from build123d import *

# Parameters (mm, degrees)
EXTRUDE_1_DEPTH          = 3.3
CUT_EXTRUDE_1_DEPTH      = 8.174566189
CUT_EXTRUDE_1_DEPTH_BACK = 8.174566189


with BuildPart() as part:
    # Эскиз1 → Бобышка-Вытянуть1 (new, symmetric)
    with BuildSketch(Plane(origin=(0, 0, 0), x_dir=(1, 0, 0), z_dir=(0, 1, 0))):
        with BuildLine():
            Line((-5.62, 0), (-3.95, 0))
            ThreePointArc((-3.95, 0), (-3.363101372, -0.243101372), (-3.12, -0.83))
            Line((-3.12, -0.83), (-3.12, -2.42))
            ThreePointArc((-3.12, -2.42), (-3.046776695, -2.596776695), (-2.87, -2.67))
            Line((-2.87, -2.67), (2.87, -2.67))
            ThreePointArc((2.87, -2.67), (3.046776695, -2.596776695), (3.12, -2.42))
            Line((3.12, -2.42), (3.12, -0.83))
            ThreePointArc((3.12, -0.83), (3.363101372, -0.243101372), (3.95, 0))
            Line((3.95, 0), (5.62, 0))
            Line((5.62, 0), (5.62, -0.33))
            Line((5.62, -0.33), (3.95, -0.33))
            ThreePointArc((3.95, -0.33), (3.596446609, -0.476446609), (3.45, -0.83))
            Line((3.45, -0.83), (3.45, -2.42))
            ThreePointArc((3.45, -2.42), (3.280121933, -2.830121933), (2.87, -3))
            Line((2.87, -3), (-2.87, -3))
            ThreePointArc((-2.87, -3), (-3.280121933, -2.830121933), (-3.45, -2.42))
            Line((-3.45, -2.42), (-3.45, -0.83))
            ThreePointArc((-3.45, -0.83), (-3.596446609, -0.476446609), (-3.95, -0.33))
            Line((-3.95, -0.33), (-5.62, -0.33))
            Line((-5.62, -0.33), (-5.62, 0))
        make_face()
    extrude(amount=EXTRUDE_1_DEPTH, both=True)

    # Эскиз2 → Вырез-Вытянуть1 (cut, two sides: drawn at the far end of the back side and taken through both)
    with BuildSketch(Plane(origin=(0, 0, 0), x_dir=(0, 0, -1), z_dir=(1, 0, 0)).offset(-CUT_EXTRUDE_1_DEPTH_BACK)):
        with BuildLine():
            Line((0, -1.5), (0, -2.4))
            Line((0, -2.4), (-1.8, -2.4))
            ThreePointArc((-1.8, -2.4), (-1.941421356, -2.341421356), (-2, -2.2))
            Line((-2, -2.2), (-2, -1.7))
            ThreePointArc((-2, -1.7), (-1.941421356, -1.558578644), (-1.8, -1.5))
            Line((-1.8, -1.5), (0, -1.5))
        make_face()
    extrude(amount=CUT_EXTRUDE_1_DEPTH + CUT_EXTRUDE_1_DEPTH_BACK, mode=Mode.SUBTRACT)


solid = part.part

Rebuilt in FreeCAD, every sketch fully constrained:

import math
import FreeCAD as App
import Part
import Sketcher

doc = App.newDocument("Part")
body = doc.addObject("PartDesign::Body", "Body")

# Sketch on XZ plane
sketch1 = body.newObject("Sketcher::SketchObject", "Sketch")
sketch1.AttachmentSupport = (doc.getObject("XZ_Plane"), [""])
sketch1.MapMode = "FlatFace"
sketch1.addGeometry(Part.LineSegment(App.Vector(-3.95, 0, 0), App.Vector(-5.62, 0, 0)), False)
sketch1.addGeometry(Part.LineSegment(App.Vector(-5.62, 0, 0), App.Vector(-5.62, 0.33, 0)), False)
sketch1.addGeometry(Part.LineSegment(App.Vector(-5.62, 0.33, 0), App.Vector(-3.95, 0.33, 0)), False)
sketch1.addGeometry(Part.ArcOfCircle(Part.Circle(App.Vector(-3.95, 0.83, 0), App.Vector(0, 0, 1), 0.5), math.radians(-90), math.radians(0)), False)
sketch1.addGeometry(Part.LineSegment(App.Vector(-3.45, 0.83, 0), App.Vector(-3.45, 2.42, 0)), False)
sketch1.addGeometry(Part.ArcOfCircle(Part.Circle(App.Vector(-2.87, 2.42, 0), App.Vector(0, 0, 1), 0.58), math.radians(90), math.radians(180)), False)
sketch1.addGeometry(Part.LineSegment(App.Vector(-2.87, 3, 0), App.Vector(2.87, 3, 0)), False)
sketch1.addGeometry(Part.ArcOfCircle(Part.Circle(App.Vector(2.87, 2.42, 0), App.Vector(0, 0, 1), 0.58), math.radians(0), math.radians(90)), False)
sketch1.addGeometry(Part.LineSegment(App.Vector(3.45, 2.42, 0), App.Vector(3.45, 0.83, 0)), False)
sketch1.addGeometry(Part.ArcOfCircle(Part.Circle(App.Vector(3.95, 0.83, 0), App.Vector(0, 0, 1), 0.5), math.radians(180), math.radians(270)), False)
sketch1.addGeometry(Part.LineSegment(App.Vector(3.95, 0.33, 0), App.Vector(5.62, 0.33, 0)), False)
sketch1.addGeometry(Part.LineSegment(App.Vector(5.62, 0.33, 0), App.Vector(5.62, 0, 0)), False)
sketch1.addGeometry(Part.LineSegment(App.Vector(5.62, 0, 0), App.Vector(3.95, 0, 0)), False)
sketch1.addGeometry(Part.ArcOfCircle(Part.Circle(App.Vector(3.95, 0.83, 0), App.Vector(0, 0, 1), 0.83), math.radians(-180), math.radians(-90)), False)
sketch1.addGeometry(Part.LineSegment(App.Vector(3.12, 0.83, 0), App.Vector(3.12, 2.42, 0)), False)
sketch1.addGeometry(Part.ArcOfCircle(Part.Circle(App.Vector(2.87, 2.42, 0), App.Vector(0, 0, 1), 0.25), math.radians(0), math.radians(90)), False)
sketch1.addGeometry(Part.LineSegment(App.Vector(2.87, 2.67, 0), App.Vector(-2.87, 2.67, 0)), False)
sketch1.addGeometry(Part.ArcOfCircle(Part.Circle(App.Vector(-2.87, 2.42, 0), App.Vector(0, 0, 1), 0.25), math.radians(90), math.radians(180)), False)
sketch1.addGeometry(Part.LineSegment(App.Vector(-3.12, 2.42, 0), App.Vector(-3.12, 0.83, 0)), False)
sketch1.addGeometry(Part.ArcOfCircle(Part.Circle(App.Vector(-3.95, 0.83, 0), App.Vector(0, 0, 1), 0.83), math.radians(-90), math.radians(0)), False)
sketch1.addConstraint(Sketcher.Constraint("Coincident", 0, 2, 1, 1))
sketch1.addConstraint(Sketcher.Constraint("Coincident", 1, 2, 2, 1))
sketch1.addConstraint(Sketcher.Constraint("Tangent", 2, 2, 3, 1))
sketch1.addConstraint(Sketcher.Constraint("Tangent", 3, 2, 4, 1))
sketch1.addConstraint(Sketcher.Constraint("Tangent", 4, 2, 5, 2))
sketch1.addConstraint(Sketcher.Constraint("Tangent", 5, 1, 6, 1))
sketch1.addConstraint(Sketcher.Constraint("Tangent", 6, 2, 7, 2))
sketch1.addConstraint(Sketcher.Constraint("Tangent", 7, 1, 8, 1))
sketch1.addConstraint(Sketcher.Constraint("Tangent", 8, 2, 9, 1))
sketch1.addConstraint(Sketcher.Constraint("Tangent", 9, 2, 10, 1))
sketch1.addConstraint(Sketcher.Constraint("Coincident", 10, 2, 11, 1))
sketch1.addConstraint(Sketcher.Constraint("Coincident", 11, 2, 12, 1))
sketch1.addConstraint(Sketcher.Constraint("Tangent", 12, 2, 13, 2))
sketch1.addConstraint(Sketcher.Constraint("Tangent", 13, 1, 14, 1))
sketch1.addConstraint(Sketcher.Constraint("Tangent", 14, 2, 15, 1))
sketch1.addConstraint(Sketcher.Constraint("Tangent", 15, 2, 16, 1))
sketch1.addConstraint(Sketcher.Constraint("Tangent", 16, 2, 17, 1))
sketch1.addConstraint(Sketcher.Constraint("Tangent", 17, 2, 18, 1))
sketch1.addConstraint(Sketcher.Constraint("Tangent", 18, 2, 19, 2))
sketch1.addConstraint(Sketcher.Constraint("Tangent", 19, 1, 0, 1))
sketch1.addConstraint(Sketcher.Constraint("Horizontal", 0))
sketch1.addConstraint(Sketcher.Constraint("Vertical", 1))
sketch1.addConstraint(Sketcher.Constraint("Horizontal", 2))
sketch1.addConstraint(Sketcher.Constraint("Vertical", 4))
sketch1.addConstraint(Sketcher.Constraint("Horizontal", 6))
sketch1.addConstraint(Sketcher.Constraint("Vertical", 8))
sketch1.addConstraint(Sketcher.Constraint("Horizontal", 10))
sketch1.addConstraint(Sketcher.Constraint("Vertical", 11))
sketch1.addConstraint(Sketcher.Constraint("Horizontal", 12))
sketch1.addConstraint(Sketcher.Constraint("Vertical", 14))
sketch1.addConstraint(Sketcher.Constraint("Horizontal", 16))
sketch1.addConstraint(Sketcher.Constraint("Vertical", 18))
sketch1.addConstraint(Sketcher.Constraint("Coincident", 13, 3, 9, 3))
sketch1.addConstraint(Sketcher.Constraint("Coincident", 15, 3, 7, 3))
sketch1.addConstraint(Sketcher.Constraint("Coincident", 17, 3, 5, 3))
sketch1.addConstraint(Sketcher.Constraint("Coincident", 19, 3, 3, 3))
sketch1.addConstraint(Sketcher.Constraint("Equal", 5, 7))
sketch1.addConstraint(Sketcher.Constraint("Equal", 3, 9))
sketch1.addConstraint(Sketcher.Constraint("Symmetric", 0, 2, 11, 2, -1, 1))
sketch1.addConstraint(Sketcher.Constraint("Symmetric", 3, 3, 9, 3, -2))
sketch1.addConstraint(Sketcher.Constraint("Radius", 3, 0.5))
sketch1.addConstraint(Sketcher.Constraint("Radius", 5, 0.58))
sketch1.addConstraint(Sketcher.Constraint("Radius", 13, 0.83))
sketch1.addConstraint(Sketcher.Constraint("DistanceY", -1, 1, 5, 1, 3.0))
sketch1.addConstraint(Sketcher.Constraint("DistanceX", 0, 2, 0, 1, 1.67))
sketch1.addConstraint(Sketcher.Constraint("DistanceX", 6, 1, 6, 2, 5.74))
pad1 = body.newObject("PartDesign::Pad", "Pad")
pad1.Profile = sketch1
pad1.Length = 6.6
pad1.Midplane = True

# Sketch on YZ plane
sketch2 = body.newObject("Sketcher::SketchObject", "Sketch001")
sketch2.AttachmentSupport = (doc.getObject("YZ_Plane"), [""])
sketch2.MapMode = "FlatFace"
sketch2.addGeometry(Part.LineSegment(App.Vector(-2.4, 0, 0), App.Vector(-1.5, 0, 0)), False)
sketch2.addGeometry(Part.LineSegment(App.Vector(-1.5, 0, 0), App.Vector(-1.5, 1.8, 0)), False)
sketch2.addGeometry(Part.ArcOfCircle(Part.Circle(App.Vector(-1.7, 1.8, 0), App.Vector(0, 0, 1), 0.2), math.radians(0), math.radians(90)), False)
sketch2.addGeometry(Part.LineSegment(App.Vector(-1.7, 2, 0), App.Vector(-2.2, 2, 0)), False)
sketch2.addGeometry(Part.ArcOfCircle(Part.Circle(App.Vector(-2.2, 1.8, 0), App.Vector(0, 0, 1), 0.2), math.radians(90), math.radians(180)), False)
sketch2.addGeometry(Part.LineSegment(App.Vector(-2.4, 1.8, 0), App.Vector(-2.4, 0, 0)), False)
sketch2.addConstraint(Sketcher.Constraint("Coincident", 0, 2, 1, 1))
sketch2.addConstraint(Sketcher.Constraint("Tangent", 1, 2, 2, 1))
sketch2.addConstraint(Sketcher.Constraint("Tangent", 2, 2, 3, 1))
sketch2.addConstraint(Sketcher.Constraint("Tangent", 3, 2, 4, 1))
sketch2.addConstraint(Sketcher.Constraint("Tangent", 4, 2, 5, 1))
sketch2.addConstraint(Sketcher.Constraint("Coincident", 5, 2, 0, 1))
sketch2.addConstraint(Sketcher.Constraint("Horizontal", 0))
sketch2.addConstraint(Sketcher.Constraint("Vertical", 1))
sketch2.addConstraint(Sketcher.Constraint("Horizontal", 3))
sketch2.addConstraint(Sketcher.Constraint("Vertical", 5))
sketch2.addConstraint(Sketcher.Constraint("Equal", 2, 4))
sketch2.addConstraint(Sketcher.Constraint("PointOnObject", 0, 2, -1))
sketch2.addConstraint(Sketcher.Constraint("Radius", 2, 0.2))
sketch2.addConstraint(Sketcher.Constraint("DistanceX", 0, 1, 0, 2, 0.9))
sketch2.addConstraint(Sketcher.Constraint("DistanceY", 1, 1, 1, 2, 1.8))
sketch2.addConstraint(Sketcher.Constraint("DistanceX", 2, 3, -1, 1, 1.7))
pocket1 = body.newObject("PartDesign::Pocket", "Pocket")
pocket1.Profile = sketch2
pocket1.Type = "ThroughAll"
pocket1.Midplane = True

doc.recompute()
